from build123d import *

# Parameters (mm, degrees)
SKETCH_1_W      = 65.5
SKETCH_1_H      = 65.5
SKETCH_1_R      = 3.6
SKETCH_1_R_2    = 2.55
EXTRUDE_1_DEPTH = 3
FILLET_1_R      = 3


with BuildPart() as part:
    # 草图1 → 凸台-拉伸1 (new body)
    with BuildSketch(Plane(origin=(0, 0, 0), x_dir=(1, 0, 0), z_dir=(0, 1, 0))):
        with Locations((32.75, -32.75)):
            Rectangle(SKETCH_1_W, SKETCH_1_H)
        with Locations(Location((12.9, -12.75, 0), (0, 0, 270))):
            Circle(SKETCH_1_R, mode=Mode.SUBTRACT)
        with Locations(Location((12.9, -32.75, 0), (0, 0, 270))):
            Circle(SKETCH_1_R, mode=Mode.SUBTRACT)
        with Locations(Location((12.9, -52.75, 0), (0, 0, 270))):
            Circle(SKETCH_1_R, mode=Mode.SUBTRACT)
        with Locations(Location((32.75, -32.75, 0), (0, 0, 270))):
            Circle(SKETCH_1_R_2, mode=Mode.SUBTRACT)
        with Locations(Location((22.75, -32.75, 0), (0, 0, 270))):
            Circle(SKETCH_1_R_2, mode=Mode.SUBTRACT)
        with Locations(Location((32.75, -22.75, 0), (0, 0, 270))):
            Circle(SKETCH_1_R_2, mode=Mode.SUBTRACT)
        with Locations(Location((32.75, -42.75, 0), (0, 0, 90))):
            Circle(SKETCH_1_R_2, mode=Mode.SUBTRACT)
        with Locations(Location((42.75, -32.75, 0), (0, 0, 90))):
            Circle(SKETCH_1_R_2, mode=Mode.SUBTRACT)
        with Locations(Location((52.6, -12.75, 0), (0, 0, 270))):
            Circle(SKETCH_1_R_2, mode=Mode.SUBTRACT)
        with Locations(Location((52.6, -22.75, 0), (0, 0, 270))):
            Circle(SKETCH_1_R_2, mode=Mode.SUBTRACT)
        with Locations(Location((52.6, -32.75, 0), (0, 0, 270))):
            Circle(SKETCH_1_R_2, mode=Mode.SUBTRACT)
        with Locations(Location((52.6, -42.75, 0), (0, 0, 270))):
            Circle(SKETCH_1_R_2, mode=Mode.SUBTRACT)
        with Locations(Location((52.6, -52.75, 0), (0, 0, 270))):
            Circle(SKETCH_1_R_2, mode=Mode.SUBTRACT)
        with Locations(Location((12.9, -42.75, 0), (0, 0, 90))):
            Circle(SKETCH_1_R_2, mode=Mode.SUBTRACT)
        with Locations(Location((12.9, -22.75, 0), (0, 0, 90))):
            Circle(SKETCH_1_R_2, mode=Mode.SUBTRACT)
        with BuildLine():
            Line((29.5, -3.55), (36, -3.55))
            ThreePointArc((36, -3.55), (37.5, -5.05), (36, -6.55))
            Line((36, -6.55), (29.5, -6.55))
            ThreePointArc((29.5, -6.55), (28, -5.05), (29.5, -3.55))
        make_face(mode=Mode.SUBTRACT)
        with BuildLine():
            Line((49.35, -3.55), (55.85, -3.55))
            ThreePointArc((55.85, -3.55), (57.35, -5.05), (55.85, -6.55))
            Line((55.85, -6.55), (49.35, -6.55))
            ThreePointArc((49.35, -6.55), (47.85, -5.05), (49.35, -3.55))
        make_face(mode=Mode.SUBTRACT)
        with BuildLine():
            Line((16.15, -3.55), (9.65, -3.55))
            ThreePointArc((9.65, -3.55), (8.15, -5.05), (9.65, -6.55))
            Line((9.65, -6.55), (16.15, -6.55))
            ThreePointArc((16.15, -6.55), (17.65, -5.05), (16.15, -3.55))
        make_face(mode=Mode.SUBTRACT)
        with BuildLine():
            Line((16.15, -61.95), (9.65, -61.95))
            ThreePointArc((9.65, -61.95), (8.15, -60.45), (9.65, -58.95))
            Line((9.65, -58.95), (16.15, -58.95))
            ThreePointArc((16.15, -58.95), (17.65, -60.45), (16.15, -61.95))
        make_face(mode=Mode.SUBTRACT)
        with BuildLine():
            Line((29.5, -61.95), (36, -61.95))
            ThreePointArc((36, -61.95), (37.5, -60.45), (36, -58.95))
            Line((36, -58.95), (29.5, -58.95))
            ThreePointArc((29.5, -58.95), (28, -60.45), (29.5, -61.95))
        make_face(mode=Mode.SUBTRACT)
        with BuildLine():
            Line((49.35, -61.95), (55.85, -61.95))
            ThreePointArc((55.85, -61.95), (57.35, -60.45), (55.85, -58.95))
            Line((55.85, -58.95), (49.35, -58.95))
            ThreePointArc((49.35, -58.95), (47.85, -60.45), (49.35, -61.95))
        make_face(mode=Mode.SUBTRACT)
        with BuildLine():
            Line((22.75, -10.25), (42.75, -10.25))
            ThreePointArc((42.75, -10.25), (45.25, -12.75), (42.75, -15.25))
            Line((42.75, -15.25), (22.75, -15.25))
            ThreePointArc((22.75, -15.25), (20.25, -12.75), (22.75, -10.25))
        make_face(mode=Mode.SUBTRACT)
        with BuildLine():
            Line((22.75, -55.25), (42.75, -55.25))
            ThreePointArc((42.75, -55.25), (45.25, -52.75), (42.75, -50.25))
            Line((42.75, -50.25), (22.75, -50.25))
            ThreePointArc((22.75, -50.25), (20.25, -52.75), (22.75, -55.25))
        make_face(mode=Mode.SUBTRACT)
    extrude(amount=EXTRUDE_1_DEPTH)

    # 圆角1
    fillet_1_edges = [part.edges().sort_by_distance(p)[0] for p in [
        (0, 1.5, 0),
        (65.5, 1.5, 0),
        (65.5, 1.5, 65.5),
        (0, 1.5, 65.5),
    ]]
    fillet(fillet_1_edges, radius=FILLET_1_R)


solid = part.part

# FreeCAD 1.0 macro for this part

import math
import FreeCAD as App
import Part
import Sketcher
from FreeCAD import Vector
Q = App.Units.Quantity


def edges_at(feature, points):
    """Names of the edges that pass closest to the given points."""
    edges = feature.Shape.Edges
    near = lambda p: min(range(len(edges)), key=lambda i: edges[i].distToShape(Part.Vertex(*p))[0])
    return sorted({f"Edge{near(p) + 1}" for p in points})


def add_polygon(sketch, points):
    """Adds a closed chain of lines whose ends are joined by coincident constraints."""
    first, n = sketch.GeometryCount, len(points)
    for a, b in zip(points, points[1:] + points[:1]):
        sketch.addGeometry(Part.LineSegment(App.Vector(*a, 0), App.Vector(*b, 0)), False)
    for i in range(n):
        sketch.addConstraint(Sketcher.Constraint("Coincident", first + i, 2, first + (i + 1) % n, 1))

doc = App.newDocument("Part")
params = doc.addObject("Spreadsheet::Sheet", "Params")
for row, (alias, value) in enumerate([
    ("sketch1_diameter", "7.2 mm"),
    ("sketch1_diameter2", "5.1 mm"),
    ("sketch1_radius", "1.5 mm"),
    ("sketch1_radius2", "2.5 mm"),
    ("sketch1_width", "20 mm"),
    ("pad1_length", "3 mm"),
    ("fillet_radius", "3 mm"),
], start=1):
    params.set(f"A{row}", alias)
    params.set(f"B{row}", "=" + value)
    params.setAlias(f"B{row}", alias)

body = doc.addObject("PartDesign::Body", "Body")

sketch1 = body.newObject("Sketcher::SketchObject", "Sketch")
sketch1.AttachmentSupport = (doc.getObject("XZ_Plane"), [""])
sketch1.MapMode = "FlatFace"
add_polygon(sketch1, [(0, 0), (0, 65.5), (65.5, 65.5), (65.5, 0)])
sketch1.addGeometry(Part.ArcOfCircle(Part.Circle(Vector(16.15, 60.45, 0), Vector(0, 0, 1), 1.5), math.radians(-90), math.radians(90)), False)
sketch1.addGeometry(Part.LineSegment(Vector(16.15, 61.95, 0), Vector(9.65, 61.95, 0)), False)
sketch1.addGeometry(Part.ArcOfCircle(Part.Circle(Vector(9.65, 60.45, 0), Vector(0, 0, 1), 1.5), math.radians(90), math.radians(270)), False)
sketch1.addGeometry(Part.LineSegment(Vector(9.65, 58.95, 0), Vector(16.15, 58.95, 0)), False)
sketch1.addGeometry(Part.Circle(Vector(12.9, 52.75, 0), Vector(0, 0, 1), 3.6), False)
sketch1.addGeometry(Part.Circle(Vector(12.9, 42.75, 0), Vector(0, 0, 1), 2.55), False)
sketch1.addGeometry(Part.LineSegment(Vector(36, 61.95, 0), Vector(29.5, 61.95, 0)), False)
sketch1.addGeometry(Part.ArcOfCircle(Part.Circle(Vector(29.5, 60.45, 0), Vector(0, 0, 1), 1.5), math.radians(90), math.radians(270)), False)
sketch1.addGeometry(Part.LineSegment(Vector(29.5, 58.95, 0), Vector(36, 58.95, 0)), False)
sketch1.addGeometry(Part.ArcOfCircle(Part.Circle(Vector(36, 60.45, 0), Vector(0, 0, 1), 1.5), math.radians(-90), math.radians(90)), False)
sketch1.addGeometry(Part.LineSegment(Vector(42.75, 55.25, 0), Vector(22.75, 55.25, 0)), False)
sketch1.addGeometry(Part.ArcOfCircle(Part.Circle(Vector(22.75, 52.75, 0), Vector(0, 0, 1), 2.5), math.radians(90), math.radians(270)), False)
sketch1.addGeometry(Part.LineSegment(Vector(22.75, 50.25, 0), Vector(42.75, 50.25, 0)), False)
sketch1.addGeometry(Part.ArcOfCircle(Part.Circle(Vector(42.75, 52.75, 0), Vector(0, 0, 1), 2.5), math.radians(-90), math.radians(90)), False)
sketch1.addGeometry(Part.LineSegment(Vector(55.85, 61.95, 0), Vector(49.35, 61.95, 0)), False)
sketch1.addGeometry(Part.ArcOfCircle(Part.Circle(Vector(49.35, 60.45, 0), Vector(0, 0, 1), 1.5), math.radians(90), math.radians(270)), False)
sketch1.addGeometry(Part.LineSegment(Vector(49.35, 58.95, 0), Vector(55.85, 58.95, 0)), False)
sketch1.addGeometry(Part.ArcOfCircle(Part.Circle(Vector(55.85, 60.45, 0), Vector(0, 0, 1), 1.5), math.radians(-90), math.radians(90)), False)
sketch1.addGeometry(Part.Circle(Vector(52.6, 52.75, 0), Vector(0, 0, 1), 2.55), False)
sketch1.addGeometry(Part.Circle(Vector(32.75, 42.75, 0), Vector(0, 0, 1), 2.55), False)
sketch1.addGeometry(Part.Circle(Vector(52.6, 42.75, 0), Vector(0, 0, 1), 2.55), False)
sketch1.addGeometry(Part.Circle(Vector(12.9, 32.75, 0), Vector(0, 0, 1), 3.6), False)
sketch1.addGeometry(Part.Circle(Vector(12.9, 22.75, 0), Vector(0, 0, 1), 2.55), False)
sketch1.addGeometry(Part.Circle(Vector(22.75, 32.75, 0), Vector(0, 0, 1), 2.55), False)
sketch1.addGeometry(Part.Circle(Vector(12.9, 12.75, 0), Vector(0, 0, 1), 3.6), False)
sketch1.addGeometry(Part.LineSegment(Vector(9.65, 3.55, 0), Vector(16.15, 3.55, 0)), False)
sketch1.addGeometry(Part.ArcOfCircle(Part.Circle(Vector(16.15, 5.05, 0), Vector(0, 0, 1), 1.5), math.radians(-90), math.radians(90)), False)
sketch1.addGeometry(Part.LineSegment(Vector(16.15, 6.55, 0), Vector(9.65, 6.55, 0)), False)
sketch1.addGeometry(Part.ArcOfCircle(Part.Circle(Vector(9.65, 5.05, 0), Vector(0, 0, 1), 1.5), math.radians(90), math.radians(270)), False)
sketch1.addGeometry(Part.Circle(Vector(32.75, 32.75, 0), Vector(0, 0, 1), 2.55), False)
sketch1.addGeometry(Part.Circle(Vector(42.75, 32.75, 0), Vector(0, 0, 1), 2.55), False)
sketch1.addGeometry(Part.Circle(Vector(32.75, 22.75, 0), Vector(0, 0, 1), 2.55), False)
sketch1.addGeometry(Part.Circle(Vector(52.6, 32.75, 0), Vector(0, 0, 1), 2.55), False)
sketch1.addGeometry(Part.Circle(Vector(52.6, 22.75, 0), Vector(0, 0, 1), 2.55), False)
sketch1.addGeometry(Part.ArcOfCircle(Part.Circle(Vector(22.75, 12.75, 0), Vector(0, 0, 1), 2.5), math.radians(90), math.radians(270)), False)
sketch1.addGeometry(Part.LineSegment(Vector(22.75, 10.25, 0), Vector(42.75, 10.25, 0)), False)
sketch1.addGeometry(Part.ArcOfCircle(Part.Circle(Vector(42.75, 12.75, 0), Vector(0, 0, 1), 2.5), math.radians(-90), math.radians(90)), False)
sketch1.addGeometry(Part.LineSegment(Vector(42.75, 15.25, 0), Vector(22.75, 15.25, 0)), False)
sketch1.addGeometry(Part.ArcOfCircle(Part.Circle(Vector(29.5, 5.05, 0), Vector(0, 0, 1), 1.5), math.radians(90), math.radians(270)), False)
sketch1.addGeometry(Part.LineSegment(Vector(29.5, 3.55, 0), Vector(36, 3.55, 0)), False)
sketch1.addGeometry(Part.ArcOfCircle(Part.Circle(Vector(36, 5.05, 0), Vector(0, 0, 1), 1.5), math.radians(-90), math.radians(90)), False)
sketch1.addGeometry(Part.LineSegment(Vector(36, 6.55, 0), Vector(29.5, 6.55, 0)), False)
sketch1.addGeometry(Part.Circle(Vector(52.6, 12.75, 0), Vector(0, 0, 1), 2.55), False)
sketch1.addGeometry(Part.ArcOfCircle(Part.Circle(Vector(49.35, 5.05, 0), Vector(0, 0, 1), 1.5), math.radians(90), math.radians(270)), False)
sketch1.addGeometry(Part.LineSegment(Vector(49.35, 3.55, 0), Vector(55.85, 3.55, 0)), False)
sketch1.addGeometry(Part.ArcOfCircle(Part.Circle(Vector(55.85, 5.05, 0), Vector(0, 0, 1), 1.5), math.radians(-90), math.radians(90)), False)
sketch1.addGeometry(Part.LineSegment(Vector(55.85, 6.55, 0), Vector(49.35, 6.55, 0)), False)
sketch1.addConstraint([
    Sketcher.Constraint("Tangent", 4, 2, 5, 1),
    Sketcher.Constraint("Tangent", 5, 2, 6, 1),
    Sketcher.Constraint("Tangent", 6, 2, 7, 1),
    Sketcher.Constraint("Tangent", 7, 2, 4, 1),
    Sketcher.Constraint("Tangent", 10, 2, 11, 1),
    Sketcher.Constraint("Tangent", 11, 2, 12, 1),
    Sketcher.Constraint("Tangent", 12, 2, 13, 1),
    Sketcher.Constraint("Tangent", 13, 2, 10, 1),
    Sketcher.Constraint("Tangent", 14, 2, 15, 1),
    Sketcher.Constraint("Tangent", 15, 2, 16, 1),
    Sketcher.Constraint("Tangent", 16, 2, 17, 1),
    Sketcher.Constraint("Tangent", 17, 2, 14, 1),
    Sketcher.Constraint("Tangent", 18, 2, 19, 1),
    Sketcher.Constraint("Tangent", 19, 2, 20, 1),
    Sketcher.Constraint("Tangent", 20, 2, 21, 1),
    Sketcher.Constraint("Tangent", 21, 2, 18, 1),
    Sketcher.Constraint("Tangent", 29, 2, 30, 1),
    Sketcher.Constraint("Tangent", 30, 2, 31, 1),
    Sketcher.Constraint("Tangent", 31, 2, 32, 1),
    Sketcher.Constraint("Tangent", 32, 2, 29, 1),
    Sketcher.Constraint("Tangent", 38, 2, 39, 1),
    Sketcher.Constraint("Tangent", 39, 2, 40, 1),
    Sketcher.Constraint("Tangent", 40, 2, 41, 1),
    Sketcher.Constraint("Tangent", 41, 2, 38, 1),
    Sketcher.Constraint("Tangent", 42, 2, 43, 1),
    Sketcher.Constraint("Tangent", 43, 2, 44, 1),
    Sketcher.Constraint("Tangent", 44, 2, 45, 1),
    Sketcher.Constraint("Tangent", 45, 2, 42, 1),
    Sketcher.Constraint("Tangent", 47, 2, 48, 1),
    Sketcher.Constraint("Tangent", 48, 2, 49, 1),
    Sketcher.Constraint("Tangent", 49, 2, 50, 1),
    Sketcher.Constraint("Tangent", 50, 2, 47, 1),
    Sketcher.Constraint("Vertical", 0),
    Sketcher.Constraint("Horizontal", 1),
    Sketcher.Constraint("Vertical", 2),
    Sketcher.Constraint("Horizontal", 3),
    Sketcher.Constraint("Horizontal", 5),
    Sketcher.Constraint("Horizontal", 7),
    Sketcher.Constraint("Horizontal", 10),
    Sketcher.Constraint("Horizontal", 12),
    Sketcher.Constraint("Horizontal", 14),
    Sketcher.Constraint("Horizontal", 16),
    Sketcher.Constraint("Horizontal", 18),
    Sketcher.Constraint("Horizontal", 20),
    Sketcher.Constraint("Horizontal", 29),
    Sketcher.Constraint("Horizontal", 31),
    Sketcher.Constraint("Horizontal", 39),
    Sketcher.Constraint("Horizontal", 41),
    Sketcher.Constraint("Horizontal", 43),
    Sketcher.Constraint("Horizontal", 45),
    Sketcher.Constraint("Horizontal", 48),
    Sketcher.Constraint("Horizontal", 50),
    Sketcher.Constraint("Coincident", 3, 2, -1, 1),
    Sketcher.Constraint("Equal", 6, 11),
    Sketcher.Constraint("Equal", 13, 19),
    Sketcher.Constraint("Equal", 9, 22),
    Sketcher.Constraint("Equal", 22, 23),
    Sketcher.Constraint("Equal", 23, 24),
    Sketcher.Constraint("Equal", 8, 25),
    Sketcher.Constraint("Equal", 24, 26),
    Sketcher.Constraint("Equal", 26, 27),
    Sketcher.Constraint("Equal", 25, 28),
    Sketcher.Constraint("Equal", 21, 30),
    Sketcher.Constraint("Equal", 27, 33),
    Sketcher.Constraint("Equal", 33, 34),
    Sketcher.Constraint("Equal", 34, 35),
    Sketcher.Constraint("Equal", 35, 36),
    Sketcher.Constraint("Equal", 36, 37),
    Sketcher.Constraint("Equal", 17, 38),
    Sketcher.Constraint("Equal", 32, 42),
    Sketcher.Constraint("Equal", 37, 46),
    Sketcher.Constraint("Equal", 44, 47),
    Sketcher.Constraint("Horizontal", 6, 3, 11, 3),
    Sketcher.Constraint("Horizontal", 8, 3, 15, 3),
    Sketcher.Constraint("Horizontal", 13, 3, 19, 3),
    Sketcher.Constraint("Horizontal", 17, 3, 22, 3),
    Sketcher.Constraint("Horizontal", 9, 3, 23, 3),
    Sketcher.Constraint("Horizontal", 23, 3, 24, 3),
    Sketcher.Constraint("Horizontal", 25, 3, 27, 3),
    Sketcher.Constraint("Horizontal", 27, 3, 33, 3),
    Sketcher.Constraint("Horizontal", 33, 3, 34, 3),
    Sketcher.Constraint("Horizontal", 26, 3, 35, 3),
    Sketcher.Constraint("Horizontal", 34, 3, 36, 3),
    Sketcher.Constraint("Horizontal", 35, 3, 37, 3),
    Sketcher.Constraint("Horizontal", 28, 3, 38, 3),
    Sketcher.Constraint("Horizontal", 32, 3, 42, 3),
    Sketcher.Constraint("Horizontal", 40, 3, 46, 3),
    Sketcher.Constraint("Horizontal", 44, 3, 47, 3),
    Sketcher.Constraint("Vertical", 8, 3, 9, 3),
    Sketcher.Constraint("Vertical", 22, 3, 24, 3),
    Sketcher.Constraint("Vertical", 9, 3, 25, 3),
    Sketcher.Constraint("Vertical", 25, 3, 26, 3),
    Sketcher.Constraint("Vertical", 15, 3, 27, 3),
    Sketcher.Constraint("Vertical", 26, 3, 28, 3),
    Sketcher.Constraint("Vertical", 4, 3, 30, 3),
    Sketcher.Constraint("Vertical", 6, 3, 32, 3),
    Sketcher.Constraint("Vertical", 23, 3, 33, 3),
    Sketcher.Constraint("Vertical", 17, 3, 34, 3),
    Sketcher.Constraint("Vertical", 33, 3, 35, 3),
    Sketcher.Constraint("Vertical", 24, 3, 36, 3),
    Sketcher.Constraint("Vertical", 36, 3, 37, 3),
    Sketcher.Constraint("Vertical", 27, 3, 38, 3),
    Sketcher.Constraint("Vertical", 34, 3, 40, 3),
    Sketcher.Constraint("Vertical", 11, 3, 42, 3),
    Sketcher.Constraint("Vertical", 13, 3, 44, 3),
    Sketcher.Constraint("Vertical", 37, 3, 46, 3),
    Sketcher.Constraint("Vertical", 19, 3, 47, 3),
    Sketcher.Constraint("Vertical", 21, 3, 49, 3),
    Sketcher.Constraint("Equal", 7, 10),
    Sketcher.Constraint("Equal", 12, 18),
    Sketcher.Constraint("Equal", 3, 0),
    Sketcher.Constraint("Diameter", 8, Q("7.2 mm")),
    Sketcher.Constraint("Diameter", 9, Q("5.1 mm")),
    Sketcher.Constraint("Radius", 4, Q("1.5 mm")),
    Sketcher.Constraint("Radius", 15, Q("2.5 mm")),
    Sketcher.Constraint("DistanceX", 14, 2, 14, 1, Q("20 mm")),
    Sketcher.Constraint("DistanceX", 1, 1, 1, 2, Q("65.5 mm")),
    Sketcher.Constraint("DistanceX", 5, 2, 5, 1, Q("6.5 mm")),
    Sketcher.Constraint("DistanceX", -1, 1, 13, 3, Q("36 mm")),
    Sketcher.Constraint("DistanceX", -1, 1, 8, 3, Q("12.9 mm")),
    Sketcher.Constraint("DistanceX", -1, 1, 22, 3, Q("52.6 mm")),
    Sketcher.Constraint("DistanceX", -1, 1, 4, 3, Q("16.15 mm")),
    Sketcher.Constraint("DistanceY", -1, 1, 4, 3, Q("60.45 mm")),
    Sketcher.Constraint("DistanceY", -1, 1, 8, 3, Q("52.75 mm")),
    Sketcher.Constraint("DistanceY", -1, 1, 9, 3, Q("42.75 mm")),
    Sketcher.Constraint("DistanceX", -1, 1, 15, 3, Q("22.75 mm")),
    Sketcher.Constraint("DistanceX", -1, 1, 19, 3, Q("49.35 mm")),
    Sketcher.Constraint("DistanceX", -1, 1, 23, 3, Q("32.75 mm")),
    Sketcher.Constraint("DistanceY", -1, 1, 25, 3, Q("32.75 mm")),
    Sketcher.Constraint("DistanceY", -1, 1, 26, 3, Q("22.75 mm")),
    Sketcher.Constraint("DistanceY", -1, 1, 28, 3, Q("12.75 mm")),
    Sketcher.Constraint("DistanceY", -1, 1, 30, 3, Q("5.05 mm")),
])
sketch1.setExpression("Constraints[115]", "Params.sketch1_diameter")
sketch1.setExpression("Constraints[116]", "Params.sketch1_diameter2")
sketch1.setExpression("Constraints[117]", "Params.sketch1_radius")
sketch1.setExpression("Constraints[118]", "Params.sketch1_radius2")
sketch1.setExpression("Constraints[119]", "Params.sketch1_width")
pad1 = body.newObject("PartDesign::Pad", "Pad")
pad1.Profile = sketch1
pad1.setExpression("Length", "Params.pad1_length")
pad1.Reversed = True
doc.recompute()

fillet = body.newObject("PartDesign::Fillet", "Fillet")
fillet.Base = (pad1, edges_at(pad1, [
    (0, 1.5, 0),
    (65.5, 1.5, 0),
    (65.5, 1.5, 65.5),
    (0, 1.5, 65.5),
]))
fillet.setExpression("Radius", "Params.fillet_radius")

doc.recompute()
